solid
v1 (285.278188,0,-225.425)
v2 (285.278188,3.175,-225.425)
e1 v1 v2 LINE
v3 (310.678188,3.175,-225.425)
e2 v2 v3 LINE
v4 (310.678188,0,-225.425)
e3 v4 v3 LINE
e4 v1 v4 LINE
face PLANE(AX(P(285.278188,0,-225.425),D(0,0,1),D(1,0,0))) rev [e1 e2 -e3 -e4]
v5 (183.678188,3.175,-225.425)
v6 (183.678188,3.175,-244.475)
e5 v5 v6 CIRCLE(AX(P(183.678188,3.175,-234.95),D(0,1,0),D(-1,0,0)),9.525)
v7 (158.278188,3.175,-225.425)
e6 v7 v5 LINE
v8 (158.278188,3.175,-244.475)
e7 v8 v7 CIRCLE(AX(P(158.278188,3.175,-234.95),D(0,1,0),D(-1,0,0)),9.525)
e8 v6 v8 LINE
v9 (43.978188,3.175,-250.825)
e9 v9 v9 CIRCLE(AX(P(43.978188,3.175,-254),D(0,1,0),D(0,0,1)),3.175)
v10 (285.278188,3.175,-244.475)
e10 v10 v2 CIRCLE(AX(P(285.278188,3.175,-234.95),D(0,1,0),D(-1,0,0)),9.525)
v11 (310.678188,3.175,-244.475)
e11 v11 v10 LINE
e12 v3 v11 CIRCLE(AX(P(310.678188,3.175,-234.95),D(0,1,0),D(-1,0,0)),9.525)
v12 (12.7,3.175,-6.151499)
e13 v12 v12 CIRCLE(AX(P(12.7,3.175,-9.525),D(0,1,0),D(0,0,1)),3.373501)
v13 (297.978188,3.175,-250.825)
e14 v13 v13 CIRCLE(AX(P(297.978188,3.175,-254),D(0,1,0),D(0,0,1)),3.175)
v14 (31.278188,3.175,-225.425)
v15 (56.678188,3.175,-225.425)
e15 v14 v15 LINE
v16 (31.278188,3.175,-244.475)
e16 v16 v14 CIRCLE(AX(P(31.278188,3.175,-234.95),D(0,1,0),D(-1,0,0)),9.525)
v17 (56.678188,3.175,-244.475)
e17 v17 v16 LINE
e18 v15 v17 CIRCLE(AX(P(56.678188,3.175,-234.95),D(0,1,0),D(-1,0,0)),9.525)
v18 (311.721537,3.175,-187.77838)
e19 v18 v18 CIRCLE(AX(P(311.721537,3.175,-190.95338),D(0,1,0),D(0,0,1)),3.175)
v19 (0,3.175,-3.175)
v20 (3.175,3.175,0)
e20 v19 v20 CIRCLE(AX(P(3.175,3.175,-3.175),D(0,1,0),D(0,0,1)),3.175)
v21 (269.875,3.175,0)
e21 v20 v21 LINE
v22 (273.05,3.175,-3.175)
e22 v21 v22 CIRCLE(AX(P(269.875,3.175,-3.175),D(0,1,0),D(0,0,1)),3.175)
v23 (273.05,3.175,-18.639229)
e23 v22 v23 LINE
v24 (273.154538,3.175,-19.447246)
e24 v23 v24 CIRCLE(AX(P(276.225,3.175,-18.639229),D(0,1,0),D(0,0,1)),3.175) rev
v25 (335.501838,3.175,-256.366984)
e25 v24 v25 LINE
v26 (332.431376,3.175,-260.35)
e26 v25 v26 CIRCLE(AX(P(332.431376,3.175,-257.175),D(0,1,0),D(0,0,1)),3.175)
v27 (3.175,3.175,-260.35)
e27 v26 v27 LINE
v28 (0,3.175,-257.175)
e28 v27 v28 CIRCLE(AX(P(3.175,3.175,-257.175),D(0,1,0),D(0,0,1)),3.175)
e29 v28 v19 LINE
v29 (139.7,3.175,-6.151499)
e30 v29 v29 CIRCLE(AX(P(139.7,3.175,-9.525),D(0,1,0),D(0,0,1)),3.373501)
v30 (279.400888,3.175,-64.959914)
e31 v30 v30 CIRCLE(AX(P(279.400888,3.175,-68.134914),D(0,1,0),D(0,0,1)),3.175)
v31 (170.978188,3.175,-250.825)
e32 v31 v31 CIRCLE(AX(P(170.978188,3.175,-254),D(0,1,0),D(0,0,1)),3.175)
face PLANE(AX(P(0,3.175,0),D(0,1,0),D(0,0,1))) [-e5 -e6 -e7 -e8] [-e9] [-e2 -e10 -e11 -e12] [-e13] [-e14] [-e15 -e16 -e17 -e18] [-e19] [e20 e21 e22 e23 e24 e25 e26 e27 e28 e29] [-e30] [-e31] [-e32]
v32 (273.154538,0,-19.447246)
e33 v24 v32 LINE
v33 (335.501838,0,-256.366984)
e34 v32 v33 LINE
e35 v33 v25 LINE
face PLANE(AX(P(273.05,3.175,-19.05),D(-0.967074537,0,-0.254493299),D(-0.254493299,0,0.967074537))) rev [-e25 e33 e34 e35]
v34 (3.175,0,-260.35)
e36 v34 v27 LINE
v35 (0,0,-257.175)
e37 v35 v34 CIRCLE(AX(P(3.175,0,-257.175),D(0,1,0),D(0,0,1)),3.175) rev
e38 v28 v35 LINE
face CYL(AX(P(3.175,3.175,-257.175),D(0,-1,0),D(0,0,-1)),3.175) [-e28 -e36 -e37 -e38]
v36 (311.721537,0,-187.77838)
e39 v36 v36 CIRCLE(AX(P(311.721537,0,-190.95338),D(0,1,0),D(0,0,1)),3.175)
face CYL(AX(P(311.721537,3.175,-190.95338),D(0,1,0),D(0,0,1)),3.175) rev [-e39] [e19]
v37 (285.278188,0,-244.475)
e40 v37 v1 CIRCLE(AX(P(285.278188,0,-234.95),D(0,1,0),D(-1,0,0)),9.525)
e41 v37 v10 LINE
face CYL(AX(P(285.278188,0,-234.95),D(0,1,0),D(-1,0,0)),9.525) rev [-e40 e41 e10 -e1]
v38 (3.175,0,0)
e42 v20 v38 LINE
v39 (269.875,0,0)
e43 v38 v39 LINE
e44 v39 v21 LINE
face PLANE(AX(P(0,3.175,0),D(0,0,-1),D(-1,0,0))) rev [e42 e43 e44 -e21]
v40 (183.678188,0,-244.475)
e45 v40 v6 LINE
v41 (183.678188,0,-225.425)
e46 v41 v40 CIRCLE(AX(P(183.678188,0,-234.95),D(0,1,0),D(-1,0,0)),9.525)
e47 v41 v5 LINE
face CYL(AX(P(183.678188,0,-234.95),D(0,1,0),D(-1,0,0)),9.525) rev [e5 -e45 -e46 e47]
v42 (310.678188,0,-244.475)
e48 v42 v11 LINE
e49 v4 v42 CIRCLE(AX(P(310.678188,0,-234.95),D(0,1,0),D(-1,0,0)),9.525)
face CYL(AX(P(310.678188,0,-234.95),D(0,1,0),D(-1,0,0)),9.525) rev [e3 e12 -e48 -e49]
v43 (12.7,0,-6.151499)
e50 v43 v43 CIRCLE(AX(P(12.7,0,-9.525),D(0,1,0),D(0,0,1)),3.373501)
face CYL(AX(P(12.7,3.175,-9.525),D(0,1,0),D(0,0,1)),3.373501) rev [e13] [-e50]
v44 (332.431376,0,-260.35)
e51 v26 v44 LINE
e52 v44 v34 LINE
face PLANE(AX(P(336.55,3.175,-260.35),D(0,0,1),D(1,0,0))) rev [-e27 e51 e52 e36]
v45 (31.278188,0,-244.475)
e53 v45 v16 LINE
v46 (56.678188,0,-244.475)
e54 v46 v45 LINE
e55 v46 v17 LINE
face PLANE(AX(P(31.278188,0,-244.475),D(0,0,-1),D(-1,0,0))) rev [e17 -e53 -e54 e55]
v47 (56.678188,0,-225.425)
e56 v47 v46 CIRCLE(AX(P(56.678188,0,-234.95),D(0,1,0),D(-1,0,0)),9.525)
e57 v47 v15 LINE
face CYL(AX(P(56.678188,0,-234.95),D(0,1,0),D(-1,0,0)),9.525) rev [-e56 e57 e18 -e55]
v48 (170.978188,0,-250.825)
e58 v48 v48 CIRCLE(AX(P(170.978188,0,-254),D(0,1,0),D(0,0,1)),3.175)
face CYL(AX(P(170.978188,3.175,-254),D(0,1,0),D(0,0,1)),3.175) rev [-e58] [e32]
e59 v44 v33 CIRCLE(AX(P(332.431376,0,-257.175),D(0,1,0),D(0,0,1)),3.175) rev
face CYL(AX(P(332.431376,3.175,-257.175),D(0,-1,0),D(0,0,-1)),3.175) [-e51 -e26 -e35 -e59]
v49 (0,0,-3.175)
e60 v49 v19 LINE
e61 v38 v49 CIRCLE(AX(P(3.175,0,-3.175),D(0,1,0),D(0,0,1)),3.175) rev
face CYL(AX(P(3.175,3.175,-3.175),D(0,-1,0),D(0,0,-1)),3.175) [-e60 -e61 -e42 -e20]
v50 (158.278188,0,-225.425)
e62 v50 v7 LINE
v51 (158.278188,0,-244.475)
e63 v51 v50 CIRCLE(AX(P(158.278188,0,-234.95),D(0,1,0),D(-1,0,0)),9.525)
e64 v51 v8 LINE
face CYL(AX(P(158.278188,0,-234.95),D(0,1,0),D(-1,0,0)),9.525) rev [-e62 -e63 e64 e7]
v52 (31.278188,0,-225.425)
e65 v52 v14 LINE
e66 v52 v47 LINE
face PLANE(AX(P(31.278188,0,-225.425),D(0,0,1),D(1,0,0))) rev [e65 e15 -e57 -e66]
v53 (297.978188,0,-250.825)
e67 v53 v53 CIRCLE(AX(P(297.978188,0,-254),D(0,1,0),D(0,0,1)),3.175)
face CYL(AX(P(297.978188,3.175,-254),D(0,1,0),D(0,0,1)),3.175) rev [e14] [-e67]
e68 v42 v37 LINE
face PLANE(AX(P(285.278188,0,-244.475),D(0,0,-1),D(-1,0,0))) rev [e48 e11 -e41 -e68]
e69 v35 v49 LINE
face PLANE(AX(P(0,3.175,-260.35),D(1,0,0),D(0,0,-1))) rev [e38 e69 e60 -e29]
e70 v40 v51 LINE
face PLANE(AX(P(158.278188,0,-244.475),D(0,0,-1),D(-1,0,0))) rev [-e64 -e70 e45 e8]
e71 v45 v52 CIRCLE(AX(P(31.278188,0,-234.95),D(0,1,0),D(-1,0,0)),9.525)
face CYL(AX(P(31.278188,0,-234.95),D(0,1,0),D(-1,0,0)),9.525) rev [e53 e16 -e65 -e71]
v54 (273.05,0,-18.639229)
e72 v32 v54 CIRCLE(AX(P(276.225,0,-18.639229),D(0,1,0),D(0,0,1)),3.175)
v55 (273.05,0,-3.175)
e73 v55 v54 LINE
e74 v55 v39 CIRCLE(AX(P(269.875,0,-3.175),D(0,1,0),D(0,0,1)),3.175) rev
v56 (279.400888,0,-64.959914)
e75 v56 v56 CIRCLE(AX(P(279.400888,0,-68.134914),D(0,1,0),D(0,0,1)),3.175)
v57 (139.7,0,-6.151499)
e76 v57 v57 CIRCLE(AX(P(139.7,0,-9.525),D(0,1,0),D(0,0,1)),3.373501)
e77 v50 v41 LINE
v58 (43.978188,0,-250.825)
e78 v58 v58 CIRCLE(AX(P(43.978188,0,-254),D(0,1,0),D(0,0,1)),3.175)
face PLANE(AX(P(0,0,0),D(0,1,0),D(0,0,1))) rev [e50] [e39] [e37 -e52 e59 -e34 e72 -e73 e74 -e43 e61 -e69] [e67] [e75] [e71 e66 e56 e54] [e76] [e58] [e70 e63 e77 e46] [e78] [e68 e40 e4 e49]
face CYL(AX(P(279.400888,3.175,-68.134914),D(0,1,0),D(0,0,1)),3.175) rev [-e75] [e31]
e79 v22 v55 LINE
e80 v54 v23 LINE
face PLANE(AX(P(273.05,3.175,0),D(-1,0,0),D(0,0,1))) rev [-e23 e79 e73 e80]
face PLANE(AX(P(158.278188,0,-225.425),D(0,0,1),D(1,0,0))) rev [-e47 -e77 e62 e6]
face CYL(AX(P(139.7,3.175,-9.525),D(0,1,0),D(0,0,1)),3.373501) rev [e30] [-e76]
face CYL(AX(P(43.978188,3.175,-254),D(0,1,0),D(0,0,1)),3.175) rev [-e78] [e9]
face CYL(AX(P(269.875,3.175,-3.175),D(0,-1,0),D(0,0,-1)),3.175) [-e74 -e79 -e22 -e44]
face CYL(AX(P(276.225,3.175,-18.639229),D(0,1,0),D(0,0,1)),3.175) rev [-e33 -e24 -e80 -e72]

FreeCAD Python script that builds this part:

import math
import FreeCAD as App
import Part
import Sketcher
Q = App.Units.Quantity


def edges_at(feature, points):
    """Names of the edges that pass closest to the given points."""
    edges = feature.Shape.Edges
    near = lambda p: min(range(len(edges)), key=lambda i: edges[i].distToShape(Part.Vertex(*p))[0])
    return sorted({f"Edge{near(p) + 1}" for p in points})


def add_polygon(sketch, points):
    """Adds a closed chain of lines whose ends are joined by coincident constraints."""
    first, n = sketch.GeometryCount, len(points)
    for a, b in zip(points, points[1:] + points[:1]):
        sketch.addGeometry(Part.LineSegment(App.Vector(*a, 0), App.Vector(*b, 0)), False)
    for i in range(n):
        sketch.addConstraint(Sketcher.Constraint("Coincident", first + i, 2, first + (i + 1) % n, 1))

doc = App.newDocument("Part")
body = doc.addObject("PartDesign::Body", "Body")

sketch1 = body.newObject("Sketcher::SketchObject", "Sketch")
sketch1.AttachmentSupport = (doc.getObject("XZ_Plane"), [""])
sketch1.MapMode = "FlatFace"
add_polygon(sketch1, [(0, 0), (273, 0), (273, -19), (337, -260), (0, -260)])
sketch1.addConstraint(Sketcher.Constraint("Horizontal", 0))
sketch1.addConstraint(Sketcher.Constraint("Vertical", 1))
sketch1.addConstraint(Sketcher.Constraint("Horizontal", 3))
sketch1.addConstraint(Sketcher.Constraint("Vertical", 4))
sketch1.addConstraint(Sketcher.Constraint("Coincident", 4, 2, -1, 1))
sketch1.addConstraint(Sketcher.Constraint("DistanceX", 0, 1, 0, 2, Q("10.75 in")))
sketch1.addConstraint(Sketcher.Constraint("DistanceX", 3, 2, 3, 1, Q("13.25 in")))
sketch1.addConstraint(Sketcher.Constraint("DistanceY", 1, 2, 1, 1, Q("0.75 in")))
sketch1.addConstraint(Sketcher.Constraint("DistanceY", 4, 1, 4, 2, Q("10.25 in")))
pad1 = body.newObject("PartDesign::Pad", "Pad")
pad1.Profile = sketch1
pad1.Length = Q("0.125 in")
pad1.Reversed = True
doc.recompute()

fillet = body.newObject("PartDesign::Fillet", "Fillet")
fillet.Base = (pad1, edges_at(pad1, [
    (0, 1.587, -260.35),
    (336.55, 1.587, -260.35),
    (273.05, 1.587, -19.05),
    (273.05, 1.587, 0),
    (0, 1.587, 0),
]))
fillet.Radius = Q("0.125 in")

sketch2 = body.newObject("Sketcher::SketchObject", "Sketch001")
sketch2.AttachmentSupport = (doc.getObject("XZ_Plane"), [""])
sketch2.MapMode = "FlatFace"
sketch2.AttachmentOffset = App.Placement(App.Vector(0, 0, -0.125 * 25.4), App.Rotation())
sketch2.addGeometry(Part.Circle(App.Vector(44, -254, 0), App.Vector(0, 0, 1), 3.2), False)
sketch2.addGeometry(Part.Circle(App.Vector(171, -254, 0), App.Vector(0, 0, 1), 3.2), False)
sketch2.addGeometry(Part.Circle(App.Vector(298, -254, 0), App.Vector(0, 0, 1), 3.2), False)
sketch2.addGeometry(Part.Circle(App.Vector(311.7, -191, 0), App.Vector(0, 0, 1), 3.2), False)
sketch2.addGeometry(Part.Circle(App.Vector(279.4, -68.1, 0), App.Vector(0, 0, 1), 3.2), False)
sketch2.addConstraint(Sketcher.Constraint("Equal", 0, 1))
sketch2.addConstraint(Sketcher.Constraint("Equal", 1, 2))
sketch2.addConstraint(Sketcher.Constraint("Equal", 2, 3))
sketch2.addConstraint(Sketcher.Constraint("Equal", 3, 4))
sketch2.addConstraint(Sketcher.Constraint("Horizontal", 0, 3, 1, 3))
sketch2.addConstraint(Sketcher.Constraint("Horizontal", 1, 3, 2, 3))
sketch2.addConstraint(Sketcher.Constraint("Diameter", 0, Q("0.25 in")))
sketch2.addConstraint(Sketcher.Constraint("DistanceY", 0, 3, -1, 1, Q("10 in")))
sketch2.addConstraint(Sketcher.Constraint("DistanceX", 0, 3, 1, 3, Q("5 in")))
sketch2.addConstraint(Sketcher.Constraint("DistanceX", 1, 3, 2, 3, Q("5 in")))
sketch2.addConstraint(Sketcher.Constraint("DistanceX", 4, 3, 2, 3, Q("18.577301 mm")))
sketch2.addConstraint(Sketcher.Constraint("DistanceX", -1, 1, 0, 3, Q("43.978188 mm")))
sketch2.addConstraint(Sketcher.Constraint("DistanceY", 3, 3, -1, 1, Q("190.95338 mm")))
sketch2.addConstraint(Sketcher.Constraint("DistanceX", 2, 3, 3, 3, Q("13.743348 mm")))
sketch2.addConstraint(Sketcher.Constraint("DistanceY", 4, 3, -1, 1, Q("68.134914 mm")))
doc.recompute()
hole = body.newObject("PartDesign::Hole", "Hole")
hole.Profile = sketch2
hole.ThreadType = "None"
hole.Diameter = Q("0.25 in")
hole.DepthType = "ThroughAll"
hole.Reversed = True

sketch3 = body.newObject("Sketcher::SketchObject", "Sketch002")
sketch3.AttachmentSupport = (doc.getObject("XZ_Plane"), [""])
sketch3.MapMode = "FlatFace"
sketch3.AttachmentOffset = App.Placement(App.Vector(0, 0, -0.125 * 25.4), App.Rotation())
sketch3.addGeometry(Part.Circle(App.Vector(12.7, -9.5, 0), App.Vector(0, 0, 1), 3.4), False)
sketch3.addGeometry(Part.Circle(App.Vector(139.7, -9.5, 0), App.Vector(0, 0, 1), 3.4), False)
sketch3.addConstraint(Sketcher.Constraint("Equal", 0, 1))
sketch3.addConstraint(Sketcher.Constraint("Horizontal", 0, 3, 1, 3))
sketch3.addConstraint(Sketcher.Constraint("DistanceX", 0, 3, 1, 3, Q("5 in")))
sketch3.addConstraint(Sketcher.Constraint("DistanceX", -1, 1, 0, 3, Q("0.5 in")))
sketch3.addConstraint(Sketcher.Constraint("DistanceY", 0, 3, -1, 1, Q("0.375 in")))
sketch3.addConstraint(Sketcher.Constraint("Diameter", 0, Q("6.747002 mm")))
doc.recompute()
hole2 = body.newObject("PartDesign::Hole", "Hole001")
hole2.Profile = sketch3
hole2.ThreadType = "None"
hole2.Diameter = 6.747002
hole2.DepthType = "ThroughAll"
hole2.Reversed = True

sketch4 = body.newObject("Sketcher::SketchObject", "Sketch003")
sketch4.AttachmentSupport = (doc.getObject("XZ_Plane"), [""])
sketch4.MapMode = "FlatFace"
sketch4.AttachmentOffset = App.Placement(App.Vector(0, 0, -0.125 * 25.4), App.Rotation())
sketch4.addGeometry(Part.Circle(App.Vector(298, -254, 0), App.Vector(0, 0, 1), 3.2), False)
sketch4.addGeometry(Part.Circle(App.Vector(171, -254, 0), App.Vector(0, 0, 1), 3.2), False)
sketch4.addGeometry(Part.Circle(App.Vector(44, -254, 0), App.Vector(0, 0, 1), 3.2), False)
sketch4.addGeometry(Part.LineSegment(App.Vector(56.7, -244.5, 0), App.Vector(31.3, -244.5, 0)), False)
sketch4.addGeometry(Part.ArcOfCircle(Part.Circle(App.Vector(31.3, -234.9, 0), App.Vector(0, 0, 1), 9.5), math.radians(90), math.radians(270)), False)
sketch4.addGeometry(Part.LineSegment(App.Vector(31.3, -225.4, 0), App.Vector(56.7, -225.4, 0)), False)
sketch4.addGeometry(Part.ArcOfCircle(Part.Circle(App.Vector(56.7, -234.9, 0), App.Vector(0, 0, 1), 9.5), math.radians(-90), math.radians(90)), False)
sketch4.addGeometry(Part.LineSegment(App.Vector(183.7, -244.5, 0), App.Vector(158.3, -244.5, 0)), False)
sketch4.addGeometry(Part.ArcOfCircle(Part.Circle(App.Vector(158.3, -234.9, 0), App.Vector(0, 0, 1), 9.5), math.radians(90), math.radians(270)), False)
sketch4.addGeometry(Part.LineSegment(App.Vector(158.3, -225.4, 0), App.Vector(183.7, -225.4, 0)), False)
sketch4.addGeometry(Part.ArcOfCircle(Part.Circle(App.Vector(183.7, -234.9, 0), App.Vector(0, 0, 1), 9.5), math.radians(-90), math.radians(90)), False)
sketch4.addGeometry(Part.LineSegment(App.Vector(310.7, -244.5, 0), App.Vector(285.3, -244.5, 0)), False)
sketch4.addGeometry(Part.ArcOfCircle(Part.Circle(App.Vector(285.3, -234.9, 0), App.Vector(0, 0, 1), 9.5), math.radians(90), math.radians(270)), False)
sketch4.addGeometry(Part.LineSegment(App.Vector(285.3, -225.4, 0), App.Vector(310.7, -225.4, 0)), False)
sketch4.addGeometry(Part.ArcOfCircle(Part.Circle(App.Vector(310.7, -234.9, 0), App.Vector(0, 0, 1), 9.5), math.radians(-90), math.radians(90)), False)
sketch4.addConstraint(Sketcher.Constraint("Tangent", 3, 2, 4, 2))
sketch4.addConstraint(Sketcher.Constraint("Tangent", 4, 1, 5, 1))
sketch4.addConstraint(Sketcher.Constraint("Tangent", 5, 2, 6, 2))
sketch4.addConstraint(Sketcher.Constraint("Tangent", 6, 1, 3, 1))
sketch4.addConstraint(Sketcher.Constraint("Tangent", 7, 2, 8, 2))
sketch4.addConstraint(Sketcher.Constraint("Tangent", 8, 1, 9, 1))
sketch4.addConstraint(Sketcher.Constraint("Tangent", 9, 2, 10, 2))
sketch4.addConstraint(Sketcher.Constraint("Tangent", 10, 1, 7, 1))
sketch4.addConstraint(Sketcher.Constraint("Tangent", 11, 2, 12, 2))
sketch4.addConstraint(Sketcher.Constraint("Tangent", 12, 1, 13, 1))
sketch4.addConstraint(Sketcher.Constraint("Tangent", 13, 2, 14, 2))
sketch4.addConstraint(Sketcher.Constraint("Tangent", 14, 1, 11, 1))
sketch4.addConstraint(Sketcher.Constraint("Horizontal", 3))
sketch4.addConstraint(Sketcher.Constraint("Horizontal", 5))
sketch4.addConstraint(Sketcher.Constraint("Horizontal", 7))
sketch4.addConstraint(Sketcher.Constraint("Horizontal", 9))
sketch4.addConstraint(Sketcher.Constraint("Horizontal", 11))
sketch4.addConstraint(Sketcher.Constraint("Horizontal", 13))
sketch4.addConstraint(Sketcher.Constraint("Equal", 0, 1))
sketch4.addConstraint(Sketcher.Constraint("Equal", 1, 2))
sketch4.addConstraint(Sketcher.Constraint("Equal", 6, 8))
sketch4.addConstraint(Sketcher.Constraint("Equal", 10, 12))
sketch4.addConstraint(Sketcher.Constraint("Horizontal", 0, 3, 1, 3))
sketch4.addConstraint(Sketcher.Constraint("Horizontal", 1, 3, 2, 3))
sketch4.addConstraint(Sketcher.Constraint("Horizontal", 6, 3, 8, 3))
sketch4.addConstraint(Sketcher.Constraint("Horizontal", 10, 3, 12, 3))
sketch4.addConstraint(Sketcher.Constraint("Equal", 5, 7))
sketch4.addConstraint(Sketcher.Constraint("Equal", 9, 11))
sketch4.addConstraint(Sketcher.Constraint("Diameter", 0, Q("0.25 in")))
sketch4.addConstraint(Sketcher.Constraint("DistanceX", 3, 2, 3, 1, Q("1 in")))
sketch4.addConstraint(Sketcher.Constraint("DistanceY", 0, 3, -1, 1, Q("10 in")))
sketch4.addConstraint(Sketcher.Constraint("Radius", 4, Q("0.375 in")))
sketch4.addConstraint(Sketcher.Constraint("DistanceX", 1, 3, 0, 3, Q("5 in")))
sketch4.addConstraint(Sketcher.Constraint("DistanceX", 2, 3, 1, 3, Q("5 in")))
sketch4.addConstraint(Sketcher.Constraint("DistanceX", 6, 3, 8, 3, Q("4 in")))
sketch4.addConstraint(Sketcher.Constraint("DistanceX", 10, 3, 12, 3, Q("4 in")))
sketch4.addConstraint(Sketcher.Constraint("DistanceX", 4, 3, 2, 3, Q("0.5 in")))
sketch4.addConstraint(Sketcher.Constraint("DistanceY", 4, 3, -1, 1, Q("9.25 in")))
sketch4.addConstraint(Sketcher.Constraint("DistanceX", -1, 1, 0, 3, Q("297.978188 mm")))
pocket1 = body.newObject("PartDesign::Pocket", "Pocket")
pocket1.Profile = sketch4
pocket1.Type = "ThroughAll"
pocket1.Reversed = True

doc.recompute()
